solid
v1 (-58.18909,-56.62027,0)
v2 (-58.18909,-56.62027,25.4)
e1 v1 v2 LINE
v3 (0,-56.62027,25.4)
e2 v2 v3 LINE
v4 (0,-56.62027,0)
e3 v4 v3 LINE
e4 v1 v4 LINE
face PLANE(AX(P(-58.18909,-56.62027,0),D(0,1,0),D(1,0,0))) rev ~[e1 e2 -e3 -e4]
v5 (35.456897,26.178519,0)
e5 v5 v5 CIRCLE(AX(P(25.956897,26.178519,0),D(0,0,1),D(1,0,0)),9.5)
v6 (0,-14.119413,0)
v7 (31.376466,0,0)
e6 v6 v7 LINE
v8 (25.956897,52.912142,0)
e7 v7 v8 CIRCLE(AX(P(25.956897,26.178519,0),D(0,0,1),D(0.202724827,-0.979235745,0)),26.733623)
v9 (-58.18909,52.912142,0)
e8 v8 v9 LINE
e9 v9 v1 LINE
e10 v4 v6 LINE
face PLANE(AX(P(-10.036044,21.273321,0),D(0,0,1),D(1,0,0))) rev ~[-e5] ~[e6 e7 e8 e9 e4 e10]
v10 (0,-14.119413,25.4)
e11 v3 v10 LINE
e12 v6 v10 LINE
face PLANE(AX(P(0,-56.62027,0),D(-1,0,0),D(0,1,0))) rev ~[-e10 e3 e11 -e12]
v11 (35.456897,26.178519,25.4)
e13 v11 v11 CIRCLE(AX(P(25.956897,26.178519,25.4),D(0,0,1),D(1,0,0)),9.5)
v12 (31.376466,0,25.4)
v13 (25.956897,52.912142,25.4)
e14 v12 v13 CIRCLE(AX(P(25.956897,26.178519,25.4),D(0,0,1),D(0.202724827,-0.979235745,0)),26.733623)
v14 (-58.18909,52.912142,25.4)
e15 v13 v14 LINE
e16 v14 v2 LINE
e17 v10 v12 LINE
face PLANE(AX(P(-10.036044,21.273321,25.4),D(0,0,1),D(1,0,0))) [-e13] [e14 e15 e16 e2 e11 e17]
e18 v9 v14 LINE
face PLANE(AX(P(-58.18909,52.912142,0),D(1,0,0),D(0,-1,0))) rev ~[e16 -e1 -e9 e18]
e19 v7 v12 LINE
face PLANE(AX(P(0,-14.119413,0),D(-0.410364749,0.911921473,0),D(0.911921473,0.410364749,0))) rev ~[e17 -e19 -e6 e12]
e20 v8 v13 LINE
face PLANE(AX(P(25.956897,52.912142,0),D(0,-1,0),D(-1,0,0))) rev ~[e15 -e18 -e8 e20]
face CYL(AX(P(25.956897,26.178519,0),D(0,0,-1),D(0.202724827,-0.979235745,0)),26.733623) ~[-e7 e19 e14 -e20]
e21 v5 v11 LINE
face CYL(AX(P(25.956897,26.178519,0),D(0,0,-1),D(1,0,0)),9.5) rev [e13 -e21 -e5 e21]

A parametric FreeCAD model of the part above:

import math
import FreeCAD as App
import Part
import Sketcher

V = App.Vector

doc = App.newDocument("Part")
body = doc.addObject("PartDesign::Body", "Body")

sketch1 = body.newObject("Sketcher::SketchObject", "Sketch")
sketch1.AttachmentSupport = (doc.getObject("XY_Plane"), [""])
sketch1.MapMode = "FlatFace"
sketch1.addGeometry([
    Part.LineSegment(V(26, 53, 0), V(-58, 53, 0)),
    Part.LineSegment(V(-58, 53, 0), V(-58, -57, 0)),
    Part.LineSegment(V(-58, -57, 0), V(0, -57, 0)),
    Part.LineSegment(V(0, -57, 0), V(0, -14, 0)),
    Part.LineSegment(V(0, -14, 0), V(31, 0, 0)),
    Part.ArcOfCircle(Part.Circle(V(26, 26, 0), V(0, 0, 1), 27), math.radians(-78), math.radians(90)),
    Part.Circle(V(26, 26, 0), V(0, 0, 1), 10),
], False)
sketch1.addConstraint([
    Sketcher.Constraint("Coincident", 0, 2, 1, 1),
    Sketcher.Constraint("Coincident", 1, 2, 2, 1),
    Sketcher.Constraint("Coincident", 2, 2, 3, 1),
    Sketcher.Constraint("Coincident", 3, 2, 4, 1),
    Sketcher.Constraint("Coincident", 4, 2, 5, 1),
    Sketcher.Constraint("Tangent", 5, 2, 0, 1),
    Sketcher.Constraint("Horizontal", 0),
    Sketcher.Constraint("Vertical", 1),
    Sketcher.Constraint("Horizontal", 2),
    Sketcher.Constraint("Vertical", 3),
    Sketcher.Constraint("Coincident", 6, 3, 5, 3),
    Sketcher.Constraint("PointOnObject", 2, 2, -2),
    Sketcher.Constraint("PointOnObject", 4, 2, -1),
    Sketcher.Constraint("Diameter", 6, 19.0),
    Sketcher.Constraint("Radius", 5, 26.733623),
    Sketcher.Constraint("DistanceX", 2, 1, 2, 2, 58.18909),
    Sketcher.Constraint("DistanceX", 0, 2, 0, 1, 84.145987),
    Sketcher.Constraint("DistanceY", 1, 2, 1, 1, 109.532412),
    Sketcher.Constraint("DistanceY", 3, 1, 3, 2, 42.500857),
    Sketcher.Constraint("DistanceY", -1, 1, 5, 3, 26.178519),
])
pad1 = body.newObject("PartDesign::Pad", "Pad")
pad1.Profile = sketch1
pad1.Length = 25.4

doc.recompute()
